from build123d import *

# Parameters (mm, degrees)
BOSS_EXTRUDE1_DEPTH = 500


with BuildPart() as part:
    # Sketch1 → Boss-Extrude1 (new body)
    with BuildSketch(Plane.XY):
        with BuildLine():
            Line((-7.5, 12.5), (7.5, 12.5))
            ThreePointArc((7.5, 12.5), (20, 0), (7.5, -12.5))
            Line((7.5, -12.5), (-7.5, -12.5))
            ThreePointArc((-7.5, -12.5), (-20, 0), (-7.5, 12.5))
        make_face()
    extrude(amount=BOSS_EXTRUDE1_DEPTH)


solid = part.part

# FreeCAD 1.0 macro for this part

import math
import FreeCAD as App
import Part
import Sketcher

doc = App.newDocument("Part")
body = doc.addObject("PartDesign::Body", "Body")

# Sketch on XY plane
sketch1 = body.newObject("Sketcher::SketchObject", "Sketch")
sketch1.AttachmentSupport = (doc.getObject("XY_Plane"), [""])
sketch1.MapMode = "FlatFace"
sketch1.addGeometry([
    Part.LineSegment(App.Vector(7.5, 12.5, 0), App.Vector(-7.5, 12.5, 0)),
    Part.ArcOfCircle(Part.Circle(App.Vector(-7.5, 0, 0), App.Vector(0, 0, 1), 12.5), math.radians(90), math.radians(270)),
    Part.LineSegment(App.Vector(-7.5, -12.5, 0), App.Vector(7.5, -12.5, 0)),
    Part.ArcOfCircle(Part.Circle(App.Vector(7.5, 0, 0), App.Vector(0, 0, 1), 12.5), math.radians(-90), math.radians(90)),
], False)
sketch1.addConstraint([
    Sketcher.Constraint("Tangent", 0, 2, 1, 1),
    Sketcher.Constraint("Tangent", 1, 2, 2, 1),
    Sketcher.Constraint("Tangent", 2, 2, 3, 1),
    Sketcher.Constraint("Tangent", 3, 2, 0, 1),
    Sketcher.Constraint("Horizontal", 0),
    Sketcher.Constraint("Horizontal", 2),
    Sketcher.Constraint("Symmetric", 1, 3, 3, 3, -1, 1),
    Sketcher.Constraint("Radius", 1, 12.5),
    Sketcher.Constraint("DistanceX", 0, 2, 0, 1, 15.0),
])
pad1 = body.newObject("PartDesign::Pad", "Pad")
pad1.Profile = sketch1
pad1.Length = 500

doc.recompute()
